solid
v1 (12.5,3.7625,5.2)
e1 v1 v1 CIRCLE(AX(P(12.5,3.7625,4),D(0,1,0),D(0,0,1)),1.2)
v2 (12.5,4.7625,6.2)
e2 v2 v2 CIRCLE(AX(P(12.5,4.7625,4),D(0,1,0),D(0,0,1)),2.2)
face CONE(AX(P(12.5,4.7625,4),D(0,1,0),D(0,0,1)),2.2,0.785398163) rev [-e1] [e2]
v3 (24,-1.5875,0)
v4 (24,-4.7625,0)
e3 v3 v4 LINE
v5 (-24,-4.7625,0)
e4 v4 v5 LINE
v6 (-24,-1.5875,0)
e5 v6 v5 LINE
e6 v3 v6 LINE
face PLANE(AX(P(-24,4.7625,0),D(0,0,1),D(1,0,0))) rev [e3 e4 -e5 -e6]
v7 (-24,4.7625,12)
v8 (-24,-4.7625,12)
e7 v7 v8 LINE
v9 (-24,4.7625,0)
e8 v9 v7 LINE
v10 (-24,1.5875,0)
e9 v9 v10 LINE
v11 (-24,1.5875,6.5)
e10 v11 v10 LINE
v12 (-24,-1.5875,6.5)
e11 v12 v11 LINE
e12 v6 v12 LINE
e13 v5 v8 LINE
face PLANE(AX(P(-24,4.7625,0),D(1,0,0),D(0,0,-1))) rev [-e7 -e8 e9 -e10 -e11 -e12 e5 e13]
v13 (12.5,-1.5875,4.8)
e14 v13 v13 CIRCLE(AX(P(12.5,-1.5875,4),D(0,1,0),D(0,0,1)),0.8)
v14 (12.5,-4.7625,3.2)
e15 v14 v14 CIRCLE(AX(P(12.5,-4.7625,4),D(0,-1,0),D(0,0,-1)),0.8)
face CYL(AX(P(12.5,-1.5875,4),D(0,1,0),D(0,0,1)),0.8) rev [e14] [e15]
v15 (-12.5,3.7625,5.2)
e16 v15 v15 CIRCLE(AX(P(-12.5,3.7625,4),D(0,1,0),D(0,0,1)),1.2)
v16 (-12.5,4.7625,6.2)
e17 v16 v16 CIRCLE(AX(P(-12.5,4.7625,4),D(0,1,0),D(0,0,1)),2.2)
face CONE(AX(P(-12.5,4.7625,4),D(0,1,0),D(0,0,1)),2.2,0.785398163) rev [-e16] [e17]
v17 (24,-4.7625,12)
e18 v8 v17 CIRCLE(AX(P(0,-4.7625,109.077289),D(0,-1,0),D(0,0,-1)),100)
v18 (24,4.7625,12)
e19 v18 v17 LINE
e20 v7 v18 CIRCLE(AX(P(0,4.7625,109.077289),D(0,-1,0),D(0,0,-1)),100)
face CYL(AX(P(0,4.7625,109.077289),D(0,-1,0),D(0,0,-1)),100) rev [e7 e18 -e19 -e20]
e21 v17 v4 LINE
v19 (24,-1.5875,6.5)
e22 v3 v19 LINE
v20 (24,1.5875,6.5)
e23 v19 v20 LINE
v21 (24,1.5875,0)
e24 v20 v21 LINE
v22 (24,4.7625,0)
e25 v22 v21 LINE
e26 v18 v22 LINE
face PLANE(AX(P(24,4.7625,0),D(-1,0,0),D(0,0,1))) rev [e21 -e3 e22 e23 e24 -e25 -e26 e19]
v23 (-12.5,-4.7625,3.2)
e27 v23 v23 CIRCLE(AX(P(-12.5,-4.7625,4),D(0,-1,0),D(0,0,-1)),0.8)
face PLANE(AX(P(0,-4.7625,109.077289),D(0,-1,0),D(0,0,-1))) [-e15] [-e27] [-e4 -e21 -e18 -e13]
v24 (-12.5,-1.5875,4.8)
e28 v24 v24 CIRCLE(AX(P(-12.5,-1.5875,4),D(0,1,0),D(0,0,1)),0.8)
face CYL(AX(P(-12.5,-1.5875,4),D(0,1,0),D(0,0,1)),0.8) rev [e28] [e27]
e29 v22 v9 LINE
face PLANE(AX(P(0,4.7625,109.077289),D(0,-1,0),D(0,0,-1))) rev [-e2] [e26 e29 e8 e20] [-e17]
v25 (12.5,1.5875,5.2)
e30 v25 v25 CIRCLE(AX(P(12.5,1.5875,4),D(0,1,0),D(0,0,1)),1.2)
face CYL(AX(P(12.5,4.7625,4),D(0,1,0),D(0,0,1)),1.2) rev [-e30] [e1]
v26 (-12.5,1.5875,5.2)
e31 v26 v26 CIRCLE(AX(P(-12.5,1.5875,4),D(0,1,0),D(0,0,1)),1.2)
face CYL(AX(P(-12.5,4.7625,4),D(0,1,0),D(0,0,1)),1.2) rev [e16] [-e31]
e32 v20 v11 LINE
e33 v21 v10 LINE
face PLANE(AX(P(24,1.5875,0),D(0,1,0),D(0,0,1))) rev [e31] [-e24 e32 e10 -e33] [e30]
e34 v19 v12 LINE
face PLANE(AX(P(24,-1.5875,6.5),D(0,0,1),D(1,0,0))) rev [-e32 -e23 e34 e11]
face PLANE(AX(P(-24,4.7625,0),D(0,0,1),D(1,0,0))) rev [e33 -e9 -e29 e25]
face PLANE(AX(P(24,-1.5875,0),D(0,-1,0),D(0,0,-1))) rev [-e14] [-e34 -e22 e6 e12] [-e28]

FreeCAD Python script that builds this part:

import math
import FreeCAD as App
import Part
import Sketcher


def add_polygon(sketch, points):
    """Adds a closed chain of lines whose ends are joined by coincident constraints."""
    first, n = sketch.GeometryCount, len(points)
    for a, b in zip(points, points[1:] + points[:1]):
        sketch.addGeometry(Part.LineSegment(App.Vector(*a, 0), App.Vector(*b, 0)), False)
    for i in range(n):
        sketch.addConstraint(Sketcher.Constraint("Coincident", first + i, 2, first + (i + 1) % n, 1))

doc = App.newDocument("Part")
body = doc.addObject("PartDesign::Body", "Body")

# Sketch on XZ plane
sketch1 = body.newObject("Sketcher::SketchObject", "Sketch")
sketch1.AttachmentSupport = (doc.getObject("XZ_Plane"), [""])
sketch1.MapMode = "FlatFace"
sketch1.addGeometry([
    Part.LineSegment(App.Vector(24, 0, 0), App.Vector(-24, 0, 0)),
    Part.LineSegment(App.Vector(-24, 0, 0), App.Vector(-24, 12, 0)),
    Part.ArcOfCircle(Part.Circle(App.Vector(0, 109, 0), App.Vector(0, 0, 1), 100), math.radians(-104), math.radians(-76)),
    Part.LineSegment(App.Vector(24, 12, 0), App.Vector(24, 0, 0)),
], False)
sketch1.addConstraint([
    Sketcher.Constraint("Coincident", 0, 2, 1, 1),
    Sketcher.Constraint("Coincident", 1, 2, 2, 1),
    Sketcher.Constraint("Coincident", 2, 2, 3, 1),
    Sketcher.Constraint("Coincident", 3, 2, 0, 1),
    Sketcher.Constraint("Horizontal", 0),
    Sketcher.Constraint("Vertical", 1),
    Sketcher.Constraint("Vertical", 3),
    Sketcher.Constraint("Symmetric", 0, 2, 3, 2, -1, 1),
    Sketcher.Constraint("PointOnObject", 2, 3, -2),
    Sketcher.Constraint("Radius", 2, 100.0),
    Sketcher.Constraint("DistanceX", 0, 2, 0, 1, 48.0),
    Sketcher.Constraint("DistanceY", 1, 1, 1, 2, 12.0),
])
pad1 = body.newObject("PartDesign::Pad", "Pad")
pad1.Profile = sketch1
pad1.Length = 9.525
pad1.Midplane = True

# Sketch on YZ plane
sketch2 = body.newObject("Sketcher::SketchObject", "Sketch001")
sketch2.AttachmentSupport = (doc.getObject("YZ_Plane"), [""])
sketch2.MapMode = "FlatFace"
sketch2.AttachmentOffset = App.Placement(App.Vector(0, 0, -24), App.Rotation())
add_polygon(sketch2, [(1.6, 0), (-1.6, 0), (-1.6, 6.5), (1.6, 6.5)])  # lines 0-3
sketch2.addConstraint([
    Sketcher.Constraint("Horizontal", 0),
    Sketcher.Constraint("Vertical", 1),
    Sketcher.Constraint("Horizontal", 2),
    Sketcher.Constraint("Vertical", 3),
    Sketcher.Constraint("Symmetric", 0, 2, 3, 2, -1, 1),
    Sketcher.Constraint("DistanceY", 1, 1, 1, 2, 6.5),
    Sketcher.Constraint("DistanceX", 0, 2, 0, 1, 3.175),
])
pocket1 = body.newObject("PartDesign::Pocket", "Pocket")
pocket1.Profile = sketch2
pocket1.Type = "ThroughAll"
pocket1.Reversed = True

# Sketch on XZ plane
sketch3 = body.newObject("Sketcher::SketchObject", "Sketch002")
sketch3.AttachmentSupport = (doc.getObject("XZ_Plane"), [""])
sketch3.MapMode = "FlatFace"
sketch3.AttachmentOffset = App.Placement(App.Vector(0, 0, -4.7625), App.Rotation())
sketch3.addGeometry([
    Part.Circle(App.Vector(-12.5, 4, 0), App.Vector(0, 0, 1), 1.2),
    Part.Circle(App.Vector(12.5, 4, 0), App.Vector(0, 0, 1), 1.2),
], False)
sketch3.addConstraint([
    Sketcher.Constraint("Equal", 0, 1),
    Sketcher.Constraint("Symmetric", 0, 3, 1, 3, -2),
    Sketcher.Constraint("Diameter", 0, 2.4),
    Sketcher.Constraint("DistanceY", -1, 1, 0, 3, 4.0),
    Sketcher.Constraint("DistanceX", 0, 3, 1, 3, 25.0),
])
doc.recompute()
hole = body.newObject("PartDesign::Hole", "Hole")
hole.Profile = sketch3
hole.ThreadType = "None"
hole.Diameter = 2.4
hole.DepthType = "Dimension"
hole.Depth = 3.175
hole.DrillPoint = "Flat"
hole.HoleCutType = "Countersink"
hole.HoleCutDiameter = 4.4
hole.HoleCutCountersinkAngle = 90
hole.Reversed = True

# Sketch on XZ plane
sketch4 = body.newObject("Sketcher::SketchObject", "Sketch003")
sketch4.AttachmentSupport = (doc.getObject("XZ_Plane"), [""])
sketch4.MapMode = "FlatFace"
sketch4.AttachmentOffset = App.Placement(App.Vector(0, 0, 1.5875), App.Rotation())
sketch4.addGeometry([
    Part.Circle(App.Vector(-12.5, 4, 0), App.Vector(0, 0, 1), 0.8),
    Part.Circle(App.Vector(12.5, 4, 0), App.Vector(0, 0, 1), 0.8),
], False)
sketch4.addConstraint([
    Sketcher.Constraint("Equal", 0, 1),
    Sketcher.Constraint("Symmetric", 0, 3, 1, 3, -2),
    Sketcher.Constraint("Diameter", 0, 1.6),
    Sketcher.Constraint("DistanceY", -1, 1, 0, 3, 4.0),
    Sketcher.Constraint("DistanceX", 0, 3, 1, 3, 25.0),
])
doc.recompute()
hole2 = body.newObject("PartDesign::Hole", "Hole001")
hole2.Profile = sketch4
hole2.ThreadType = "None"
hole2.Diameter = 1.6
hole2.DepthType = "ThroughAll"
hole2.Reversed = True

doc.recompute()
